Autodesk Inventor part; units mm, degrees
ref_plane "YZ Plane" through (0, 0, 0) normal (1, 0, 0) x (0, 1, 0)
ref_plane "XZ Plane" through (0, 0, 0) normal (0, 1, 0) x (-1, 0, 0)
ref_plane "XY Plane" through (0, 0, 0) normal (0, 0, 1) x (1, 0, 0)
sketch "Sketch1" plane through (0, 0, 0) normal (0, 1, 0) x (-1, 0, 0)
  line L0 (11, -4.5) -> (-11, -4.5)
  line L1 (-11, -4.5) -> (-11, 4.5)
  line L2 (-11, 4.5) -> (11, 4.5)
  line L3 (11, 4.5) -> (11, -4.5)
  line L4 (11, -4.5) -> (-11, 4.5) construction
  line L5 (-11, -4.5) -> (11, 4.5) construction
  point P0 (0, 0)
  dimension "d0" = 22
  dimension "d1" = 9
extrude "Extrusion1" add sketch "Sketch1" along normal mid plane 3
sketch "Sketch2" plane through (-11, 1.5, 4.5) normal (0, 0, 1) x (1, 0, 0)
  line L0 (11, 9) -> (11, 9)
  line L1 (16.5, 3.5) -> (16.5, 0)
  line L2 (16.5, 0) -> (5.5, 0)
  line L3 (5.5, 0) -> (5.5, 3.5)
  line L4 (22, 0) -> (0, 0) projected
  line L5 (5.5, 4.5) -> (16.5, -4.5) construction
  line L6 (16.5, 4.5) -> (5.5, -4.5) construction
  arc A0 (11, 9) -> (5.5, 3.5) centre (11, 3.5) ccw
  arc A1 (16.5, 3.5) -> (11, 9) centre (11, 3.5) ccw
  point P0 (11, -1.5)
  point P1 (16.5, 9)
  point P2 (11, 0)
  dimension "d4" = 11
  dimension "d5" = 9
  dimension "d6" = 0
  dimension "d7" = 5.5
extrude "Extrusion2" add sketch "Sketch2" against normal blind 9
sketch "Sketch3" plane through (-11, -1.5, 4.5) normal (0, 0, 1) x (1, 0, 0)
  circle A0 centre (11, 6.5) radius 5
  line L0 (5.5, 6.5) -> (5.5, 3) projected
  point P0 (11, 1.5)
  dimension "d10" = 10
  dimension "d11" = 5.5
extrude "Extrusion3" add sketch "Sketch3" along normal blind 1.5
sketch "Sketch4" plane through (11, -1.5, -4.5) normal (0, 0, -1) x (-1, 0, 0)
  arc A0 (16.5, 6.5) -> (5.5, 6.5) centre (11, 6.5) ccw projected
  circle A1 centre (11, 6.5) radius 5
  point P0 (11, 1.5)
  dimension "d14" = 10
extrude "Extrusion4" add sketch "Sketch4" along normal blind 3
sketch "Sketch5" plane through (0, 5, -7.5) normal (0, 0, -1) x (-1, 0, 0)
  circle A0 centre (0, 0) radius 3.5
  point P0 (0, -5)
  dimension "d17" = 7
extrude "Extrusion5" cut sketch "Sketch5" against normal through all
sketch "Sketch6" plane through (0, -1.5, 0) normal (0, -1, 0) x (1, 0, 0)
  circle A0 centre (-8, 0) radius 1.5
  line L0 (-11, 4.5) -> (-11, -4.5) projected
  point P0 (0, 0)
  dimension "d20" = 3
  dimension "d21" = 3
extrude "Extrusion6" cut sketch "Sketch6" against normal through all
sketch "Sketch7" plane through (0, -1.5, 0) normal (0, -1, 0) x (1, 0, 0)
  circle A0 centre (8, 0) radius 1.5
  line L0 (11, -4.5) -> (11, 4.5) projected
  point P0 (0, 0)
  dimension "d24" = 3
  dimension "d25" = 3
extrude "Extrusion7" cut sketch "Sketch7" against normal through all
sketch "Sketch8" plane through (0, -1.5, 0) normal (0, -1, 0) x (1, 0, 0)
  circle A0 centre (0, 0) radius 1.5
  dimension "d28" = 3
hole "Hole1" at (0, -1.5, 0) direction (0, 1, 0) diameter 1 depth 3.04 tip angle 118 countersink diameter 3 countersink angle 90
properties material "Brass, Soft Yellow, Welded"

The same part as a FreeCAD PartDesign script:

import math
import FreeCAD as App
import Part
import Sketcher
from FreeCAD import Vector
Q = App.Units.Quantity

doc = App.newDocument("Part")
params = doc.addObject("Spreadsheet::Sheet", "Params")
for row, (alias, value) in enumerate([
    ("sketch1_width", "22 mm"),
    ("sketch1_height", "9 mm"),
    ("pad1_length", "3 mm"),
    ("sketch2_radius", "5.5 mm"),
    ("sketch2_height", "3.5 mm"),
    ("pad2_length", "9 mm"),
    ("sketch3_diameter", "10 mm"),
    ("pad3_length", "1.5 mm"),
    ("sketch4_diameter", "10 mm"),
    ("pad4_length", "3 mm"),
    ("sketch5_diameter", "7 mm"),
    ("sketch6_diameter", "3 mm"),
    ("sketch7_diameter", "3 mm"),
    ("sketch8_diameter", "1 mm"),
    ("hole_diameter", "1 mm"),
    ("hole_depth", "3.04 mm"),
    ("hole_csink_diameter", "3 mm"),
], start=1):
    params.set(f"A{row}", alias)
    params.set(f"B{row}", "=" + value)
    params.setAlias(f"B{row}", alias)

body = doc.addObject("PartDesign::Body", "Body")

sketch1 = body.newObject("Sketcher::SketchObject", "Sketch")
sketch1.AttachmentSupport = (doc.getObject("XZ_Plane"), [""])
sketch1.MapMode = "FlatFace"
sketch1.addGeometry(Part.LineSegment(Vector(11, -4, 0), Vector(-11, -4, 0)), False)
sketch1.addGeometry(Part.LineSegment(Vector(-11, -4, 0), Vector(-11, 4, 0)), False)
sketch1.addGeometry(Part.LineSegment(Vector(-11, 4, 0), Vector(11, 4, 0)), False)
sketch1.addGeometry(Part.LineSegment(Vector(11, 4, 0), Vector(11, -4, 0)), False)
sketch1.addConstraint(Sketcher.Constraint("Coincident", 0, 2, 1, 1))
sketch1.addConstraint(Sketcher.Constraint("Coincident", 1, 2, 2, 1))
sketch1.addConstraint(Sketcher.Constraint("Coincident", 2, 2, 3, 1))
sketch1.addConstraint(Sketcher.Constraint("Coincident", 3, 2, 0, 1))
sketch1.addConstraint(Sketcher.Constraint("Horizontal", 0))
sketch1.addConstraint(Sketcher.Constraint("Vertical", 1))
sketch1.addConstraint(Sketcher.Constraint("Horizontal", 2))
sketch1.addConstraint(Sketcher.Constraint("Vertical", 3))
sketch1.addConstraint(Sketcher.Constraint("Symmetric", 0, 2, 2, 2, -1, 1))
sketch1.addConstraint(Sketcher.Constraint("DistanceX", 0, 2, 0, 1, Q("22 mm")))
sketch1.addConstraint(Sketcher.Constraint("DistanceY", 1, 1, 1, 2, Q("9 mm")))
sketch1.setExpression("Constraints[9]", "Params.sketch1_width")
sketch1.setExpression("Constraints[10]", "Params.sketch1_height")
pad1 = body.newObject("PartDesign::Pad", "Pad")
pad1.Profile = sketch1
pad1.setExpression("Length", "Params.pad1_length")
pad1.Midplane = True

sketch2 = body.newObject("Sketcher::SketchObject", "Sketch001")
sketch2.AttachmentSupport = (doc.getObject("XY_Plane"), [""])
sketch2.MapMode = "FlatFace"
sketch2.AttachmentOffset = App.Placement(Vector(0, 0, 4.5), App.Rotation())
sketch2.addGeometry(Part.LineSegment(Vector(5.5, 1.5, 0), Vector(5.5, 5, 0)), False)
sketch2.addGeometry(Part.ArcOfCircle(Part.Circle(Vector(0, 5, 0), Vector(0, 0, 1), 5.5), math.radians(0), math.radians(180)), False)
sketch2.addGeometry(Part.LineSegment(Vector(-5.5, 5, 0), Vector(-5.5, 1.5, 0)), False)
sketch2.addGeometry(Part.LineSegment(Vector(-5.5, 1.5, 0), Vector(5.5, 1.5, 0)), False)
sketch2.addConstraint(Sketcher.Constraint("Tangent", 0, 2, 1, 1))
sketch2.addConstraint(Sketcher.Constraint("Tangent", 1, 2, 2, 1))
sketch2.addConstraint(Sketcher.Constraint("Coincident", 2, 2, 3, 1))
sketch2.addConstraint(Sketcher.Constraint("Coincident", 3, 2, 0, 1))
sketch2.addConstraint(Sketcher.Constraint("Vertical", 0))
sketch2.addConstraint(Sketcher.Constraint("Vertical", 2))
sketch2.addConstraint(Sketcher.Constraint("Horizontal", 3))
sketch2.addConstraint(Sketcher.Constraint("PointOnObject", 1, 3, -2))
sketch2.addConstraint(Sketcher.Constraint("Radius", 1, Q("5.5 mm")))
sketch2.addConstraint(Sketcher.Constraint("DistanceY", 0, 1, 0, 2, Q("3.5 mm")))
sketch2.addConstraint(Sketcher.Constraint("DistanceY", -1, 1, 1, 3, Q("5 mm")))
sketch2.setExpression("Constraints[8]", "Params.sketch2_radius")
sketch2.setExpression("Constraints[9]", "Params.sketch2_height")
pad2 = body.newObject("PartDesign::Pad", "Pad001")
pad2.Profile = sketch2
pad2.setExpression("Length", "Params.pad2_length")
pad2.Reversed = True

sketch3 = body.newObject("Sketcher::SketchObject", "Sketch002")
sketch3.AttachmentSupport = (doc.getObject("XY_Plane"), [""])
sketch3.MapMode = "FlatFace"
sketch3.AttachmentOffset = App.Placement(Vector(0, 0, 4.5), App.Rotation())
sketch3.addGeometry(Part.Circle(Vector(0, 5, 0), Vector(0, 0, 1), 5), False)
sketch3.addConstraint(Sketcher.Constraint("PointOnObject", 0, 3, -2))
sketch3.addConstraint(Sketcher.Constraint("Diameter", 0, Q("10 mm")))
sketch3.addConstraint(Sketcher.Constraint("DistanceY", -1, 1, 0, 3, Q("5 mm")))
sketch3.setExpression("Constraints[1]", "Params.sketch3_diameter")
pad3 = body.newObject("PartDesign::Pad", "Pad002")
pad3.Profile = sketch3
pad3.setExpression("Length", "Params.pad3_length")

sketch4 = body.newObject("Sketcher::SketchObject", "Sketch003")
sketch4.AttachmentSupport = (doc.getObject("XY_Plane"), [""])
sketch4.MapMode = "FlatFace"
sketch4.AttachmentOffset = App.Placement(Vector(0, 0, -4.5), App.Rotation())
sketch4.addGeometry(Part.Circle(Vector(0, 5, 0), Vector(0, 0, 1), 5), False)
sketch4.addConstraint(Sketcher.Constraint("PointOnObject", 0, 3, -2))
sketch4.addConstraint(Sketcher.Constraint("Diameter", 0, Q("10 mm")))
sketch4.addConstraint(Sketcher.Constraint("DistanceY", -1, 1, 0, 3, Q("5 mm")))
sketch4.setExpression("Constraints[1]", "Params.sketch4_diameter")
pad4 = body.newObject("PartDesign::Pad", "Pad003")
pad4.Profile = sketch4
pad4.setExpression("Length", "Params.pad4_length")
pad4.Reversed = True

sketch5 = body.newObject("Sketcher::SketchObject", "Sketch004")
sketch5.AttachmentSupport = (doc.getObject("XY_Plane"), [""])
sketch5.MapMode = "FlatFace"
sketch5.AttachmentOffset = App.Placement(Vector(0, 0, -7.5), App.Rotation())
sketch5.addGeometry(Part.Circle(Vector(0, 5, 0), Vector(0, 0, 1), 3.5), False)
sketch5.addConstraint(Sketcher.Constraint("PointOnObject", 0, 3, -2))
sketch5.addConstraint(Sketcher.Constraint("Diameter", 0, Q("7 mm")))
sketch5.addConstraint(Sketcher.Constraint("DistanceY", -1, 1, 0, 3, Q("5 mm")))
sketch5.setExpression("Constraints[1]", "Params.sketch5_diameter")
pocket1 = body.newObject("PartDesign::Pocket", "Pocket")
pocket1.Profile = sketch5
pocket1.Type = "ThroughAll"
pocket1.Reversed = True

sketch6 = body.newObject("Sketcher::SketchObject", "Sketch005")
sketch6.AttachmentSupport = (doc.getObject("XZ_Plane"), [""])
sketch6.MapMode = "FlatFace"
sketch6.AttachmentOffset = App.Placement(Vector(0, 0, 1.5), App.Rotation())
sketch6.addGeometry(Part.Circle(Vector(-8, 0, 0), Vector(0, 0, 1), 1.5), False)
sketch6.addConstraint(Sketcher.Constraint("PointOnObject", 0, 3, -1))
sketch6.addConstraint(Sketcher.Constraint("Diameter", 0, Q("3 mm")))
sketch6.addConstraint(Sketcher.Constraint("DistanceX", 0, 3, -1, 1, Q("8 mm")))
sketch6.setExpression("Constraints[1]", "Params.sketch6_diameter")
pocket2 = body.newObject("PartDesign::Pocket", "Pocket001")
pocket2.Profile = sketch6
pocket2.Type = "ThroughAll"

sketch7 = body.newObject("Sketcher::SketchObject", "Sketch006")
sketch7.AttachmentSupport = (doc.getObject("XZ_Plane"), [""])
sketch7.MapMode = "FlatFace"
sketch7.AttachmentOffset = App.Placement(Vector(0, 0, 1.5), App.Rotation())
sketch7.addGeometry(Part.Circle(Vector(8, 0, 0), Vector(0, 0, 1), 1.5), False)
sketch7.addConstraint(Sketcher.Constraint("PointOnObject", 0, 3, -1))
sketch7.addConstraint(Sketcher.Constraint("Diameter", 0, Q("3 mm")))
sketch7.addConstraint(Sketcher.Constraint("DistanceX", -1, 1, 0, 3, Q("8 mm")))
sketch7.setExpression("Constraints[1]", "Params.sketch7_diameter")
pocket3 = body.newObject("PartDesign::Pocket", "Pocket002")
pocket3.Profile = sketch7
pocket3.Type = "ThroughAll"

sketch8 = body.newObject("Sketcher::SketchObject", "Sketch007")
sketch8.AttachmentSupport = (doc.getObject("XZ_Plane"), [""])
sketch8.MapMode = "FlatFace"
sketch8.AttachmentOffset = App.Placement(Vector(0, 0, 1.5), App.Rotation())
sketch8.addGeometry(Part.Circle(Vector(0, 0, 0), Vector(0, 0, 1), 0.5), False)
sketch8.addConstraint(Sketcher.Constraint("Coincident", 0, 3, -1, 1))
sketch8.addConstraint(Sketcher.Constraint("Diameter", 0, Q("1 mm")))
sketch8.setExpression("Constraints[1]", "Params.sketch8_diameter")
doc.recompute()
hole = body.newObject("PartDesign::Hole", "Hole")
hole.Profile = sketch8
hole.ThreadType = "None"
hole.setExpression("Diameter", "Params.hole_diameter")
hole.DepthType = "Dimension"
hole.setExpression("Depth", "Params.hole_depth")
hole.DrillPoint = "Angled"
hole.DrillPointAngle = 118
hole.HoleCutType = "Countersink"
hole.setExpression("HoleCutDiameter", "Params.hole_csink_diameter")
hole.HoleCutCountersinkAngle = 90

doc.recompute()
